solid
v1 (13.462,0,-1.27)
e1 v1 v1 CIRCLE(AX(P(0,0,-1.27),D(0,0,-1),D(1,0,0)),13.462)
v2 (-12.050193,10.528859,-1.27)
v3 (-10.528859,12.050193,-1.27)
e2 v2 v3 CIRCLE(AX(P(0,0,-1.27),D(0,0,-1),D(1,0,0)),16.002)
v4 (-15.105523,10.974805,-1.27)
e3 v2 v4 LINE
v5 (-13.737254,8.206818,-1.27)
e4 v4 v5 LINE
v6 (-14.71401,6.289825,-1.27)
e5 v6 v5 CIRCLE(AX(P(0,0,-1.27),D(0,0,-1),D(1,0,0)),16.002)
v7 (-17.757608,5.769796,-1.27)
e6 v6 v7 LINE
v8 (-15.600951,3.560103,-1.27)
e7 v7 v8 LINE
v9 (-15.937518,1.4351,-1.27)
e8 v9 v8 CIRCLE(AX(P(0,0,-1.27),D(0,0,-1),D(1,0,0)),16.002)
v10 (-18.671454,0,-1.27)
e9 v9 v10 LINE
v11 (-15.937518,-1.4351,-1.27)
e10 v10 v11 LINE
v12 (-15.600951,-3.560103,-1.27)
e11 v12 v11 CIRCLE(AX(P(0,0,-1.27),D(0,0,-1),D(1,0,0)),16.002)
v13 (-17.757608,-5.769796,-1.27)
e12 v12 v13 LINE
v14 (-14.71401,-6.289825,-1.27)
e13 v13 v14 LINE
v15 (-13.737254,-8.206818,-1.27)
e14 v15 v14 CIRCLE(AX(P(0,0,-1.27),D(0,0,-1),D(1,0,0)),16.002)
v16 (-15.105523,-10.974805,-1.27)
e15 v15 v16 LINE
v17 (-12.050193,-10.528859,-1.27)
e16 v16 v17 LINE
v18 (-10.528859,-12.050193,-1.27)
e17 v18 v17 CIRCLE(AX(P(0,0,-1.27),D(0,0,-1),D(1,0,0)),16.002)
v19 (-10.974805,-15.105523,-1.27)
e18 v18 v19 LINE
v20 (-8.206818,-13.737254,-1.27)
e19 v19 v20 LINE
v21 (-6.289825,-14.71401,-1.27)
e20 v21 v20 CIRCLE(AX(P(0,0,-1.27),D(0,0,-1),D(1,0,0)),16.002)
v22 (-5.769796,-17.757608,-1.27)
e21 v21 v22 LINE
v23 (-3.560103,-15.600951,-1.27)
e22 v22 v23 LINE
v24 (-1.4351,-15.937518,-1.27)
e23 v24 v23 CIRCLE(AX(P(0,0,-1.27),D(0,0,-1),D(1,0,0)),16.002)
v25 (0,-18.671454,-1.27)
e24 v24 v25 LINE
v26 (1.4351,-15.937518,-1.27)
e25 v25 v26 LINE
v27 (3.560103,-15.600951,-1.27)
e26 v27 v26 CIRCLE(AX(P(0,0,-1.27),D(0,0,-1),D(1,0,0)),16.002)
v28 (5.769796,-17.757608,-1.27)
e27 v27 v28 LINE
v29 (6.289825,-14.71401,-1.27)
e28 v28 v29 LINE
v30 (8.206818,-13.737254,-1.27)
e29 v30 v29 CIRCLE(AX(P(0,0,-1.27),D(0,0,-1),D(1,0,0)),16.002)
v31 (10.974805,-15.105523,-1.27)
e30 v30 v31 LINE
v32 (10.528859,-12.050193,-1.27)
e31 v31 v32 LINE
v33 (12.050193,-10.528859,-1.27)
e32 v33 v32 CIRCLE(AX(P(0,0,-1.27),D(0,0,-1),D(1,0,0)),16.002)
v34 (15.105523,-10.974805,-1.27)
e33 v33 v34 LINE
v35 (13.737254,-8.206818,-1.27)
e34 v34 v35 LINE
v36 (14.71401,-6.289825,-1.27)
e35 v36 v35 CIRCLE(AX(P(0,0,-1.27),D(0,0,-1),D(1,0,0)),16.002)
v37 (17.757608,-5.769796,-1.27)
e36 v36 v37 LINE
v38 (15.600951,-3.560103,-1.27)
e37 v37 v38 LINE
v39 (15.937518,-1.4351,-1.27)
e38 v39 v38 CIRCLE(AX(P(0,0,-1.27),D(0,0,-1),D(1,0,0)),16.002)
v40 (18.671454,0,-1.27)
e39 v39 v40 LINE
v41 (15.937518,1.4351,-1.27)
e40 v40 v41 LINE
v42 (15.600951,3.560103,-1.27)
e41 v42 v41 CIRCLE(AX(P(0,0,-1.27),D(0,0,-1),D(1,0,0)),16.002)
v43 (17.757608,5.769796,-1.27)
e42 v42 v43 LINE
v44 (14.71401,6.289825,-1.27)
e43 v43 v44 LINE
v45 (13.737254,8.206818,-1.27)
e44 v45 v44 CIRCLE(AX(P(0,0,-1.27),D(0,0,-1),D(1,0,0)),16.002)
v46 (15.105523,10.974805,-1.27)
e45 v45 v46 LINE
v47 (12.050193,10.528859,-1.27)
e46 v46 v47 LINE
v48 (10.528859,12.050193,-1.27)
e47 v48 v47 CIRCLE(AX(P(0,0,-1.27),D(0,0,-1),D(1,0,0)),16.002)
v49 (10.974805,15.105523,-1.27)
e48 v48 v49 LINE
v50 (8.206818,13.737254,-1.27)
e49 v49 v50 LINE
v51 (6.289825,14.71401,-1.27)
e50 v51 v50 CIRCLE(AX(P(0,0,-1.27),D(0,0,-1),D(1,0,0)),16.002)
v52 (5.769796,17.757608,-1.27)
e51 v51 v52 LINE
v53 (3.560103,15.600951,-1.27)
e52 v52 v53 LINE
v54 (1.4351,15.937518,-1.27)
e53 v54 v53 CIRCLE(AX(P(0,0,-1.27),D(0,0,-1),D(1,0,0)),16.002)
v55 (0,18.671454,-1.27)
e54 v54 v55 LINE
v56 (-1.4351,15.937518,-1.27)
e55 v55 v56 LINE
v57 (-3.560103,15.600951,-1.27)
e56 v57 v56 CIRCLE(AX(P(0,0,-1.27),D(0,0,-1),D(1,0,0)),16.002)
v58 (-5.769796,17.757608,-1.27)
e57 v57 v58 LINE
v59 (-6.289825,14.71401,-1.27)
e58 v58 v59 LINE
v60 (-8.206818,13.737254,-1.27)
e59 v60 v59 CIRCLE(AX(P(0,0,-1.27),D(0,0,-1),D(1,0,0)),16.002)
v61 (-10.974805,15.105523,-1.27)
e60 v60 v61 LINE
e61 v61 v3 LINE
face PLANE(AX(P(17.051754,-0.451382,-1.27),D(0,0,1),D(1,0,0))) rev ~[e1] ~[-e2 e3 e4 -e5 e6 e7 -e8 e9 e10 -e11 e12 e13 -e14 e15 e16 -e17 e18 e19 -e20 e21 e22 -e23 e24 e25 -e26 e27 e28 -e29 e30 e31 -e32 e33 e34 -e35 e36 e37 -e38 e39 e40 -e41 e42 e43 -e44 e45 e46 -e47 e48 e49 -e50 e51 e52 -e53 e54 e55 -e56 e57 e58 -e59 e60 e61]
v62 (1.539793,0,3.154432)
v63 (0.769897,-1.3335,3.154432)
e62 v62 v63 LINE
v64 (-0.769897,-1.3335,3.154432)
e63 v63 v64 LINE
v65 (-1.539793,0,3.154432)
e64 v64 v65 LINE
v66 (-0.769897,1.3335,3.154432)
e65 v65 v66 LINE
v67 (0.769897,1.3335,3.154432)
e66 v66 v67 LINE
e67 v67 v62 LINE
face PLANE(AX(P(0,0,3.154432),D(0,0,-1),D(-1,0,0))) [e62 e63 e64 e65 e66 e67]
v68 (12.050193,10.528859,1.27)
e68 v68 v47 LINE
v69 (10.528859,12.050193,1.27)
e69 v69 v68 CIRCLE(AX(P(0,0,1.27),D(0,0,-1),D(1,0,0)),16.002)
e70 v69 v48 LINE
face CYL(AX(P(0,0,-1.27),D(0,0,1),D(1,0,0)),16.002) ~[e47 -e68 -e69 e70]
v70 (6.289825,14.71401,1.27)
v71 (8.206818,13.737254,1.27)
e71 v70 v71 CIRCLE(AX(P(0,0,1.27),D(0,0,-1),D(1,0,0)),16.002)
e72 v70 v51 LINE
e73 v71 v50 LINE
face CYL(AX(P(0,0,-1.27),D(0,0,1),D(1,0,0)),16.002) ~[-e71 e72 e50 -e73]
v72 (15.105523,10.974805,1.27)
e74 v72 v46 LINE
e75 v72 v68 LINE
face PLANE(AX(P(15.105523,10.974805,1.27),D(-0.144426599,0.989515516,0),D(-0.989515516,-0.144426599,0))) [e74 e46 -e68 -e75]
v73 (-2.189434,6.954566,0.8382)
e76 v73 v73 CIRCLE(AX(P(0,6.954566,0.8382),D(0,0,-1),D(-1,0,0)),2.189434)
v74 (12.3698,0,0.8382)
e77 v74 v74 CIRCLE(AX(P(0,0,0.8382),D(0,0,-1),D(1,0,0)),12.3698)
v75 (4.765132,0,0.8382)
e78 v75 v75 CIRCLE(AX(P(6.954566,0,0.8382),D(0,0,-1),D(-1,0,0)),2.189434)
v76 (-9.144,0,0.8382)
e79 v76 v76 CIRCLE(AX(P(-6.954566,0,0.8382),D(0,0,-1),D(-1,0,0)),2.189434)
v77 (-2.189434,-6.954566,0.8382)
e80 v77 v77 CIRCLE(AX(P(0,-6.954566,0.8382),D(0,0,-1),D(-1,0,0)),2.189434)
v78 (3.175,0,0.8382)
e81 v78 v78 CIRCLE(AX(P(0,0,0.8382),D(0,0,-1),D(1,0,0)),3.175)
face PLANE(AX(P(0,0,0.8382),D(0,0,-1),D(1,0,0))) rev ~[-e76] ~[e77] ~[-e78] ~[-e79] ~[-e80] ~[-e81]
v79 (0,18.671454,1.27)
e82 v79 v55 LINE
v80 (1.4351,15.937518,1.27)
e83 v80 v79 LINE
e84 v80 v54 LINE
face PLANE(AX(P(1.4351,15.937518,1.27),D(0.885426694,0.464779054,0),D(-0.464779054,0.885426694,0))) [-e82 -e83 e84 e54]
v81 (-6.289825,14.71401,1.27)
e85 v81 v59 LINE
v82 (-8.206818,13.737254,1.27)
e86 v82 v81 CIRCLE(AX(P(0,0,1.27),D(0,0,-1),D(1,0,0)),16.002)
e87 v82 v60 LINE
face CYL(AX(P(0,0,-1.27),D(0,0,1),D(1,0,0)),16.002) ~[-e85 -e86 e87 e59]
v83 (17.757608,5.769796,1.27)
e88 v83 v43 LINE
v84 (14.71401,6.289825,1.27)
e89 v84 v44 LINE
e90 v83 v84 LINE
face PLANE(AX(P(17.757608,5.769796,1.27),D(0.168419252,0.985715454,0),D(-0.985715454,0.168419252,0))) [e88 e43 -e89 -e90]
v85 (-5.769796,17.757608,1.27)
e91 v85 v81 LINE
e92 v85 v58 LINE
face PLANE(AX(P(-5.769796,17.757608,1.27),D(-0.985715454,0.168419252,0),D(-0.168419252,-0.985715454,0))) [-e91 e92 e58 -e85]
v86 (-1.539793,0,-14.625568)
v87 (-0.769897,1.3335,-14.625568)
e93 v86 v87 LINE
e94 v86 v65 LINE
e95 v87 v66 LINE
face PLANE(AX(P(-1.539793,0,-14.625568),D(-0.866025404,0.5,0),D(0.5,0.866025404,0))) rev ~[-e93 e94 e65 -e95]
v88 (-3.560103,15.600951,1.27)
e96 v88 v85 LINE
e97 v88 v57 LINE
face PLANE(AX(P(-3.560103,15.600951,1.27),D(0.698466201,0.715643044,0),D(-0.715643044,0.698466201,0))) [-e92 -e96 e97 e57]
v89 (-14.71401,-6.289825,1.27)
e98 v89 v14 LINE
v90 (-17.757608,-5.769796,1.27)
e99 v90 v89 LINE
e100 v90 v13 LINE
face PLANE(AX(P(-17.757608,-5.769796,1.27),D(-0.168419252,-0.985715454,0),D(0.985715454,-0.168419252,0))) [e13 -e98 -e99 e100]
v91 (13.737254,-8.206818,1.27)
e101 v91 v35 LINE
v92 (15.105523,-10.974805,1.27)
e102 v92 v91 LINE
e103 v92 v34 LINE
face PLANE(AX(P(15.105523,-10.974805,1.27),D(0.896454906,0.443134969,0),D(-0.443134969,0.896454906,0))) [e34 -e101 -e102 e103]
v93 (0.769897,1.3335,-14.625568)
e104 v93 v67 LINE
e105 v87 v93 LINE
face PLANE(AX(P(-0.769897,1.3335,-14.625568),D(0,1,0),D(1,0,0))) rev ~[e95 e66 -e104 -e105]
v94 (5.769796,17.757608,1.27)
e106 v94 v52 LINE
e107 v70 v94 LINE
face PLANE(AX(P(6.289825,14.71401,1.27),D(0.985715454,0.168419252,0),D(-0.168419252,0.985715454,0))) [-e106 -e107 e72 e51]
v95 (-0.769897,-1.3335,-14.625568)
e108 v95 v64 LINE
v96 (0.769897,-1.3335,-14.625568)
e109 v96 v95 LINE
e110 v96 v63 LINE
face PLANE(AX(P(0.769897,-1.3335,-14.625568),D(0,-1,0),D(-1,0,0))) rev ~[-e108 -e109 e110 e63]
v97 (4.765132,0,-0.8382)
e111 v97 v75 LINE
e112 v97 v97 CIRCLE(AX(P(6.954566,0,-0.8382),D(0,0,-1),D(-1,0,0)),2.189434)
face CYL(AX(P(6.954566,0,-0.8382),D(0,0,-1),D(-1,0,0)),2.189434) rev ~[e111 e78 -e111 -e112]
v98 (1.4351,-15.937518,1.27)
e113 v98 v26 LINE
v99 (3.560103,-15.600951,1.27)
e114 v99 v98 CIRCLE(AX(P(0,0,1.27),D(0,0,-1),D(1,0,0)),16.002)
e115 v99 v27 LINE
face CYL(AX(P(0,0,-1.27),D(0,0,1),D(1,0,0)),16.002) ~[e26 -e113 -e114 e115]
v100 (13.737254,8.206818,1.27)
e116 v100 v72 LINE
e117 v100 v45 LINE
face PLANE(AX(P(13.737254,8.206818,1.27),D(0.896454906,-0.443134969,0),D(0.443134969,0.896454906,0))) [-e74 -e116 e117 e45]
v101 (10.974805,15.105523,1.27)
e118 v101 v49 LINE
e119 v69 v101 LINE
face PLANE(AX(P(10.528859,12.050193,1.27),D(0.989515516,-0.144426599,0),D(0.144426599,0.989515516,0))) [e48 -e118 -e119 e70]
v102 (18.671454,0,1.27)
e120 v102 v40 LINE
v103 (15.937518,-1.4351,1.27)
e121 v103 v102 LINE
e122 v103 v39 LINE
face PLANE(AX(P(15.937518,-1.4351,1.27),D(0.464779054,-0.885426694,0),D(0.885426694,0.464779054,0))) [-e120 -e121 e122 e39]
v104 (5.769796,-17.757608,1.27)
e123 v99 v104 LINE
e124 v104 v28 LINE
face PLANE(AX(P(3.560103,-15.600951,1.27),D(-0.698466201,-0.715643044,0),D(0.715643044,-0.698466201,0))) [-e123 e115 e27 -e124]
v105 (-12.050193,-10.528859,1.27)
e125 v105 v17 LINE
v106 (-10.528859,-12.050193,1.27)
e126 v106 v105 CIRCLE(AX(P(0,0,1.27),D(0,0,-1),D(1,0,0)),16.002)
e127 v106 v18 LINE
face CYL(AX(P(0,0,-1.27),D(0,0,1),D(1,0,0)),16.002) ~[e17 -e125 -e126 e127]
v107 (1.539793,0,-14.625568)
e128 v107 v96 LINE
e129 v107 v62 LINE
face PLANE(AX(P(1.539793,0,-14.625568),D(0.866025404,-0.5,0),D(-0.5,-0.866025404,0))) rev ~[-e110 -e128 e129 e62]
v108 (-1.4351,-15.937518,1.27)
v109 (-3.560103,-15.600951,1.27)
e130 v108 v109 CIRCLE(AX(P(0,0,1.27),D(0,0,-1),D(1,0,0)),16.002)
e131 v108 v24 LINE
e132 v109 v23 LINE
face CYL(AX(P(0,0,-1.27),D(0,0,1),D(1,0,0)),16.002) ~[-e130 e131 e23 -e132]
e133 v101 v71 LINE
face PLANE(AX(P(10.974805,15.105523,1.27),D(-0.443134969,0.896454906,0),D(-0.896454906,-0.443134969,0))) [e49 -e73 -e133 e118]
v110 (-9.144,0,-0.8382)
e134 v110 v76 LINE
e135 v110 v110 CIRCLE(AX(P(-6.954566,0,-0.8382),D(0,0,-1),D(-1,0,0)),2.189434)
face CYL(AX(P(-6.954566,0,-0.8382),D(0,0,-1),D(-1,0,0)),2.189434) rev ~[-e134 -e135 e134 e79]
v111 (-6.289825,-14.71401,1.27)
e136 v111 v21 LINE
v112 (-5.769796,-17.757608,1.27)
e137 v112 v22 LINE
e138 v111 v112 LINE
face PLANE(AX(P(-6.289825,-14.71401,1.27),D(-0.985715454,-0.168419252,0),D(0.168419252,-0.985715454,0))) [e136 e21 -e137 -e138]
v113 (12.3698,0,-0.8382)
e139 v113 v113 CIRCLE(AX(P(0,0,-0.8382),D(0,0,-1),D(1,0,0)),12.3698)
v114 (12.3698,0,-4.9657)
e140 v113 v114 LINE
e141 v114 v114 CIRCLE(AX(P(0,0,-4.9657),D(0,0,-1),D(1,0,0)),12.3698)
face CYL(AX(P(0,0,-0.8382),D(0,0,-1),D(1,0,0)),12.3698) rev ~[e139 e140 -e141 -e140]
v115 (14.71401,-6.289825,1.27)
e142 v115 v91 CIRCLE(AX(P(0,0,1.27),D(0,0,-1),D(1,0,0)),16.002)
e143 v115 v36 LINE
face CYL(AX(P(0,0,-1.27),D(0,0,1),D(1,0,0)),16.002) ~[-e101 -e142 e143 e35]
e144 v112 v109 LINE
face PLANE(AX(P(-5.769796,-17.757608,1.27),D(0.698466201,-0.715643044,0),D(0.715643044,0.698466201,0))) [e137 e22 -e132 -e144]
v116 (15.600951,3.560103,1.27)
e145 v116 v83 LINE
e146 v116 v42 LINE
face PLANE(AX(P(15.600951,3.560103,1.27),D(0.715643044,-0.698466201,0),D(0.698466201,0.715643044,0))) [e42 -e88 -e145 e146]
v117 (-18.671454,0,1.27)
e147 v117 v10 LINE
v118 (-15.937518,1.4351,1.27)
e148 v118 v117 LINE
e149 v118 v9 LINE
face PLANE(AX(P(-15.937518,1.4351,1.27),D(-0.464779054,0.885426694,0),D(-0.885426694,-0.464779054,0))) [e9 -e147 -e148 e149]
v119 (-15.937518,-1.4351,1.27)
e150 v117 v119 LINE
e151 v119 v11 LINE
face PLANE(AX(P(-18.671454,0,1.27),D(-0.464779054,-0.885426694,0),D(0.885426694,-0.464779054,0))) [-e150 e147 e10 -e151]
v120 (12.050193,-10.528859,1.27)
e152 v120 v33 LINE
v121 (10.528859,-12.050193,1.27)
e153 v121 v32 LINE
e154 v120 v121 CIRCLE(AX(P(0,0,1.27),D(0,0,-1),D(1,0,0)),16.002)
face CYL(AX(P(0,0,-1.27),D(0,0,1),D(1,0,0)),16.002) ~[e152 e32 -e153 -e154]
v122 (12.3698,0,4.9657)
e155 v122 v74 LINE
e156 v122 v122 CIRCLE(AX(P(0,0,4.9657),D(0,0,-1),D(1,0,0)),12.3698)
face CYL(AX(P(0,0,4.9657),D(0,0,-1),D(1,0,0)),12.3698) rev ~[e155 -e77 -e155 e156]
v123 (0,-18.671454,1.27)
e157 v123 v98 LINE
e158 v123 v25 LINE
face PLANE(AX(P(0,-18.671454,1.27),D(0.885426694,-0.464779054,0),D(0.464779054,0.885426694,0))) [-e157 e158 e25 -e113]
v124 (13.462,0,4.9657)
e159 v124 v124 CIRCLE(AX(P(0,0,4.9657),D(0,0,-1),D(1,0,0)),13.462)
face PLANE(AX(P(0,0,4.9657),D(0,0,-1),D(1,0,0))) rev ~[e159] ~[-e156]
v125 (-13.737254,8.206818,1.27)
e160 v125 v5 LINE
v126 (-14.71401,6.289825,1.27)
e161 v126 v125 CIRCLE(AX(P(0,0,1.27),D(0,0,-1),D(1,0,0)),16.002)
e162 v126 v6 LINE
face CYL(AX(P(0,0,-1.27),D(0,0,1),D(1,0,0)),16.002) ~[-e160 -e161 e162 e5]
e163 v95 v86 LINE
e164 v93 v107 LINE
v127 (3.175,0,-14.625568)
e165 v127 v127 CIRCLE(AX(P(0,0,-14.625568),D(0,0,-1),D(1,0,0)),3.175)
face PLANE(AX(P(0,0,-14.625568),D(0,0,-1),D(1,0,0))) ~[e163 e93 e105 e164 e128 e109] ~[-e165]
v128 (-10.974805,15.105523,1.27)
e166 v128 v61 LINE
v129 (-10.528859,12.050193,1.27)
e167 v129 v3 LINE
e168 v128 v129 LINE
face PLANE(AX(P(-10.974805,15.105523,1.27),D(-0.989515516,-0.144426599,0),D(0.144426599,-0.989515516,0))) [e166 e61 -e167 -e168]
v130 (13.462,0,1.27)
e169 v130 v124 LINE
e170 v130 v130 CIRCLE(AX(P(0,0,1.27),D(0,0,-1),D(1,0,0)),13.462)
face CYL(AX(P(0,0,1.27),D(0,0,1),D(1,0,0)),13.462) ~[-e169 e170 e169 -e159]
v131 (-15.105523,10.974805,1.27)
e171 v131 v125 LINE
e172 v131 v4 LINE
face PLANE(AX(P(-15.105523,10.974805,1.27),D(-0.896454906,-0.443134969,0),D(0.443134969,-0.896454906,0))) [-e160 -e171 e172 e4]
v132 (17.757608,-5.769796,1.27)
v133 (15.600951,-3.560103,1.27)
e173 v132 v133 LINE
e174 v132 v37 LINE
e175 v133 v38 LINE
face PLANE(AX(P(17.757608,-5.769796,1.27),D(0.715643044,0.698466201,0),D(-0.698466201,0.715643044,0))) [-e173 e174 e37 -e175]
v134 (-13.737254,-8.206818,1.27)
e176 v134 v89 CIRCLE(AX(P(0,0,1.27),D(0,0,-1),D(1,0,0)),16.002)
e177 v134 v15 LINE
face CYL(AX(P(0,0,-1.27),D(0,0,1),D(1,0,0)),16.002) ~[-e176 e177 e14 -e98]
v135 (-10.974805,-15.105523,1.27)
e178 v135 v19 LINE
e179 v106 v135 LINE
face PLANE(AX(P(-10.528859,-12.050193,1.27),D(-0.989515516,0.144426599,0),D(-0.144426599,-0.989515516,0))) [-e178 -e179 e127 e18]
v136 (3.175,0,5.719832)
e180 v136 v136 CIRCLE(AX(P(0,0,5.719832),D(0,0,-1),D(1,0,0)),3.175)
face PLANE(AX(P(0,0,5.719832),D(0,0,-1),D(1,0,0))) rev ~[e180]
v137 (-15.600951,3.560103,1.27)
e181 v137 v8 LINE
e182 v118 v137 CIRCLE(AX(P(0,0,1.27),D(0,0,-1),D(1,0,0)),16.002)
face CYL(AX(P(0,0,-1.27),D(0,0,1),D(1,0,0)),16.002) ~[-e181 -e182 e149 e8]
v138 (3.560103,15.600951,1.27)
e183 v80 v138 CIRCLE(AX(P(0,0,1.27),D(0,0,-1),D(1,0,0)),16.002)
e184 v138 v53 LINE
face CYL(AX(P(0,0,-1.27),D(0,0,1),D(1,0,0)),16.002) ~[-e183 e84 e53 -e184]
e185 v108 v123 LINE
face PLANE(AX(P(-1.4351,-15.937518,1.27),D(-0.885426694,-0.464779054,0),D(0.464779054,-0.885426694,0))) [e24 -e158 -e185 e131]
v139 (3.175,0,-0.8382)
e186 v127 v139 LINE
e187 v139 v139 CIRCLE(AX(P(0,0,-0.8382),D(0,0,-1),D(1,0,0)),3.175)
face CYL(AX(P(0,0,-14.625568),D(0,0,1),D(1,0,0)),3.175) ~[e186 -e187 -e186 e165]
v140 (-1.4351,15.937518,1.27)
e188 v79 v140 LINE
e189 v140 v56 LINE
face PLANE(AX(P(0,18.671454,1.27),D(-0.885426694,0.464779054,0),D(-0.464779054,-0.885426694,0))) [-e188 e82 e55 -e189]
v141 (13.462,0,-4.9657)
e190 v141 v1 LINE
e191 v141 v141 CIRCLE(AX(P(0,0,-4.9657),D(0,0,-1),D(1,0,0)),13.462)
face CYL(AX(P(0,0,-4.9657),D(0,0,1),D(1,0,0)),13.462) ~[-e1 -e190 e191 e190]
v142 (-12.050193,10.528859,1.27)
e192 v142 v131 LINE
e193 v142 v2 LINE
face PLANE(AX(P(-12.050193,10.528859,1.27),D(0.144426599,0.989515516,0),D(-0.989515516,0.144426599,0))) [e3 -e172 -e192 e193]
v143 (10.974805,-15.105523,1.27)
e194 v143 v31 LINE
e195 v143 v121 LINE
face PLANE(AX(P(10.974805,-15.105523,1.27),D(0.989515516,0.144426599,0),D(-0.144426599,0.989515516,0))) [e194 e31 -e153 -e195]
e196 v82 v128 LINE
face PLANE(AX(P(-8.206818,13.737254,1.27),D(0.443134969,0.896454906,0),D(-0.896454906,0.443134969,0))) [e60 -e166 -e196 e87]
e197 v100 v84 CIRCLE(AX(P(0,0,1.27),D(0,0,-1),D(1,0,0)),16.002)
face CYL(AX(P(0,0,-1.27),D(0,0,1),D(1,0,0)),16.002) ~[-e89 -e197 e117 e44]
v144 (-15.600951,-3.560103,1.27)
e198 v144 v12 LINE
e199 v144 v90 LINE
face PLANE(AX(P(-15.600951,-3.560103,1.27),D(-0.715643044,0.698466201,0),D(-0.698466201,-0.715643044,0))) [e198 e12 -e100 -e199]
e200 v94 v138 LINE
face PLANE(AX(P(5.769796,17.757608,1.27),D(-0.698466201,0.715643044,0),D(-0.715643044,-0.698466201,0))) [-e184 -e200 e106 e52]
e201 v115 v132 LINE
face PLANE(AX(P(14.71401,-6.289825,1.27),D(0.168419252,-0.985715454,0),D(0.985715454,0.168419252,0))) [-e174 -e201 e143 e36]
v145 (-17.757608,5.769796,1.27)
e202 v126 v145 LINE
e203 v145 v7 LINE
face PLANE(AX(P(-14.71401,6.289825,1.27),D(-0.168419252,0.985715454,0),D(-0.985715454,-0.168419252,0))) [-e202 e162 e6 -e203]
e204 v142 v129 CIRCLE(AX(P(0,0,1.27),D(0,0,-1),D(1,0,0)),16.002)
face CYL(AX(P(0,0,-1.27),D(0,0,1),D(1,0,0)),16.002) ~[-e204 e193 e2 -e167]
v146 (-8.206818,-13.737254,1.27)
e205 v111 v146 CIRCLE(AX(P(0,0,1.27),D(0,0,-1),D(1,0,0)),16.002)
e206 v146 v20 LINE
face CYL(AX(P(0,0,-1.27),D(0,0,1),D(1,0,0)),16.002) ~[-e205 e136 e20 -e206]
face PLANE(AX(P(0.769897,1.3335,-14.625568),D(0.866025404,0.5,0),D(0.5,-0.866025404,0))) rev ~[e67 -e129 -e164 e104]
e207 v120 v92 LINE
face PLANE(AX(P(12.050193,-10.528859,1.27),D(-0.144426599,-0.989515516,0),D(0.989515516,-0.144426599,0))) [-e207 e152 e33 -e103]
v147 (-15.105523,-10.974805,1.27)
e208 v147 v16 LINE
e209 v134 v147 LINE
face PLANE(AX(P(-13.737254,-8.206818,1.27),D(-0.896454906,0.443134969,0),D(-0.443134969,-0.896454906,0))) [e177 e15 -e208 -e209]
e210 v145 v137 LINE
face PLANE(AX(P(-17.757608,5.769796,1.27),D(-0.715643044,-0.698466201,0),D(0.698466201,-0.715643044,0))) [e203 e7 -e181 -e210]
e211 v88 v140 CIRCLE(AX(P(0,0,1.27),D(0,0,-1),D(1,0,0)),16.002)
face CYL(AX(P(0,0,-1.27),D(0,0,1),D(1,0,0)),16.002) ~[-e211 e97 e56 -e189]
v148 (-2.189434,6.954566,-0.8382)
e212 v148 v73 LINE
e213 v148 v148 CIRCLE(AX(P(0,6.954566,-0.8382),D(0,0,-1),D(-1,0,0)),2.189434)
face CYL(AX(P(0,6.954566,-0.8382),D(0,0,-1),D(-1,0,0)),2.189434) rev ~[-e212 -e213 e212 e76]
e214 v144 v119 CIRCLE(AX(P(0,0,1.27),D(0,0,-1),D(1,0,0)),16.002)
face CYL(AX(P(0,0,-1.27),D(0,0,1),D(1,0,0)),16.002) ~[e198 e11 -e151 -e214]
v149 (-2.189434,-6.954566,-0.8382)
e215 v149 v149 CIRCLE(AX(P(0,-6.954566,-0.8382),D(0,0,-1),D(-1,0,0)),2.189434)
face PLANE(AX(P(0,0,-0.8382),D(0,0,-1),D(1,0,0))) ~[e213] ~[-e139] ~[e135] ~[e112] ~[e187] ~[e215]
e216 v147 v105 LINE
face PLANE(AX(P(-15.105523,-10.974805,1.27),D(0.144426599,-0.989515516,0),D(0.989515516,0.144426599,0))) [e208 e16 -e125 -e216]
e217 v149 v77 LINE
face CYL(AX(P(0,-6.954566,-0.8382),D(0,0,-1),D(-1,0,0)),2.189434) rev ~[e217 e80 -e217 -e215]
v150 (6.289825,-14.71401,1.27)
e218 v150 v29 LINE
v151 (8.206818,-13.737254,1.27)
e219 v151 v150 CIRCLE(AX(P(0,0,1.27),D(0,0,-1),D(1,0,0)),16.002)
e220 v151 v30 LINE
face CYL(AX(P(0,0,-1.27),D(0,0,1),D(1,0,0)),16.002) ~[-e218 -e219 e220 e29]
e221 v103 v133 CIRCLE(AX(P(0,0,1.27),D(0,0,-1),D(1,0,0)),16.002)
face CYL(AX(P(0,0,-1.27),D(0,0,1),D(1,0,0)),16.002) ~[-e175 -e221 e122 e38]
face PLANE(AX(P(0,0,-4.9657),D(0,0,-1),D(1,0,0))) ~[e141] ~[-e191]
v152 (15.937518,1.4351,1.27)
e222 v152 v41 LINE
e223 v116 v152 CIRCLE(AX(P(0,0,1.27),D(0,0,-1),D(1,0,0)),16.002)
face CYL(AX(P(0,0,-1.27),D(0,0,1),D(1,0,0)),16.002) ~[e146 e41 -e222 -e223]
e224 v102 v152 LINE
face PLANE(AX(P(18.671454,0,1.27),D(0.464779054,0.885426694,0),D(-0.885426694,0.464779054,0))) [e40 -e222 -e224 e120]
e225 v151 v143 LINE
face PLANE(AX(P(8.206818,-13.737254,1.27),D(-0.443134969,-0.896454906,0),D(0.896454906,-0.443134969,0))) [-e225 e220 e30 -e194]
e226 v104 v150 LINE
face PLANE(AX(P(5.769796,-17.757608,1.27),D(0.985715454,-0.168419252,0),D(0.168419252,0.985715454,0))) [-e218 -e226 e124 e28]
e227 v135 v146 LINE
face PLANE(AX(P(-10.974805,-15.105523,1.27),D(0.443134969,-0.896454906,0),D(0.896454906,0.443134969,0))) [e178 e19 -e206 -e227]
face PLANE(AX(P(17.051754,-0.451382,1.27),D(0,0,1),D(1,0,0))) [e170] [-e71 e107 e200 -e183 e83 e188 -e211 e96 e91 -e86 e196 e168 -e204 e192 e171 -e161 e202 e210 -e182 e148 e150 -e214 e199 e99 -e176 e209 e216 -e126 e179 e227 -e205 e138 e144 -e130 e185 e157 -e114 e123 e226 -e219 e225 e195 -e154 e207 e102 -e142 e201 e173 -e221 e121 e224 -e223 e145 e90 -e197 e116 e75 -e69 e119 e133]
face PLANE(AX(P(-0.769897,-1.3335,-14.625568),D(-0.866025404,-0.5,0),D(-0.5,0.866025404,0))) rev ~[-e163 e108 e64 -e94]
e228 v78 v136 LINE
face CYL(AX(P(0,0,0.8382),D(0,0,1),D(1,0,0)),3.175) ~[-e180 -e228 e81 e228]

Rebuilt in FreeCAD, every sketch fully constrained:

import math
import FreeCAD as App
import Part
import Sketcher
Q = App.Units.Quantity


def add_polygon(sketch, points):
    """Adds a closed chain of lines whose ends are joined by coincident constraints."""
    first, n = sketch.GeometryCount, len(points)
    for a, b in zip(points, points[1:] + points[:1]):
        sketch.addGeometry(Part.LineSegment(App.Vector(*a, 0), App.Vector(*b, 0)), False)
    for i in range(n):
        sketch.addConstraint(Sketcher.Constraint("Coincident", first + i, 2, first + (i + 1) % n, 1))

doc = App.newDocument("Part")
body = doc.addObject("PartDesign::Body", "Body")

# Sketch on YZ plane
sketch1 = body.newObject("Sketcher::SketchObject", "Sketch")
sketch1.AttachmentSupport = (doc.getObject("YZ_Plane"), [""])
sketch1.MapMode = "FlatFace"
add_polygon(sketch1, [(13.5, -5), (13.5, -1.3), (16, -1.3), (16, 1.3), (13.5, 1.3), (13.5, 5), (12.4, 5), (12.4, 0.8), (3.2, 0.8), (3.2, 5.7), (0, 5.7), (0, -14.6), (3.2, -14.6), (3.2, -0.8), (12.4, -0.8), (12.4, -5)])  # lines 0-15
sketch1.addConstraint(Sketcher.Constraint("Vertical", 0))
sketch1.addConstraint(Sketcher.Constraint("Horizontal", 1))
sketch1.addConstraint(Sketcher.Constraint("Vertical", 2))
sketch1.addConstraint(Sketcher.Constraint("Horizontal", 3))
sketch1.addConstraint(Sketcher.Constraint("Vertical", 4))
sketch1.addConstraint(Sketcher.Constraint("Horizontal", 5))
sketch1.addConstraint(Sketcher.Constraint("Vertical", 6))
sketch1.addConstraint(Sketcher.Constraint("Horizontal", 7))
sketch1.addConstraint(Sketcher.Constraint("Vertical", 8))
sketch1.addConstraint(Sketcher.Constraint("Horizontal", 9))
sketch1.addConstraint(Sketcher.Constraint("Vertical", 10))
sketch1.addConstraint(Sketcher.Constraint("Horizontal", 11))
sketch1.addConstraint(Sketcher.Constraint("Vertical", 12))
sketch1.addConstraint(Sketcher.Constraint("Horizontal", 13))
sketch1.addConstraint(Sketcher.Constraint("Vertical", 14))
sketch1.addConstraint(Sketcher.Constraint("Horizontal", 15))
sketch1.addConstraint(Sketcher.Constraint("Symmetric", 0, 2, 3, 2, -1))
sketch1.addConstraint(Sketcher.Constraint("Symmetric", 7, 2, 12, 2, -1))
sketch1.addConstraint(Sketcher.Constraint("Symmetric", 5, 2, 14, 2, -1))
sketch1.addConstraint(Sketcher.Constraint("PointOnObject", 9, 2, -2))
sketch1.addConstraint(Sketcher.Constraint("Equal", 3, 2))
sketch1.addConstraint(Sketcher.Constraint("DistanceX", 1, 1, 1, 2, Q("0.1 in")))
sketch1.addConstraint(Sketcher.Constraint("DistanceX", 5, 2, 5, 1, Q("0.043 in")))
sketch1.addConstraint(Sketcher.Constraint("DistanceX", 7, 2, 7, 1, Q("0.362 in")))
sketch1.addConstraint(Sketcher.Constraint("DistanceX", 9, 2, 9, 1, Q("0.125 in")))
sketch1.addConstraint(Sketcher.Constraint("DistanceY", 10, 2, 10, 1, Q("0.801 in")))
sketch1.addConstraint(Sketcher.Constraint("DistanceY", 0, 1, 0, 2, Q("0.1455 in")))
sketch1.addConstraint(Sketcher.Constraint("DistanceY", 6, 2, 6, 1, Q("0.1625 in")))
sketch1.addConstraint(Sketcher.Constraint("DistanceY", 8, 1, 8, 2, 4.881632))
revolution = body.newObject("PartDesign::Revolution", "Revolution")
revolution.Profile = sketch1
revolution.ReferenceAxis = (sketch1, ["V_Axis"])
revolution.Angle = 360

# Sketch on XY plane
sketch2 = body.newObject("Sketcher::SketchObject", "Sketch001")
sketch2.AttachmentSupport = (doc.getObject("XY_Plane"), [""])
sketch2.MapMode = "FlatFace"
sketch2.AttachmentOffset = App.Placement(App.Vector(0, 0, -14.625568), App.Rotation())
add_polygon(sketch2, [(-1.5, 0), (-0.8, 1.3), (0.8, 1.3), (1.5, 0), (0.8, -1.3), (-0.8, -1.3)])  # lines 0-5
sketch2.addConstraint(Sketcher.Constraint("Horizontal", 1))
sketch2.addConstraint(Sketcher.Constraint("Horizontal", 4))
sketch2.addConstraint(Sketcher.Constraint("Symmetric", 0, 2, 3, 2, -1, 1))
sketch2.addConstraint(Sketcher.Constraint("Symmetric", 2, 2, 5, 2, -1, 1))
sketch2.addConstraint(Sketcher.Constraint("PointOnObject", 2, 2, -1))
sketch2.addConstraint(Sketcher.Constraint("Parallel", 2, 5))
sketch2.addConstraint(Sketcher.Constraint("Vertical", 1, 2, 3, 2))
sketch2.addConstraint(Sketcher.Constraint("Angle", 0, Q("60 deg")))
sketch2.addConstraint(Sketcher.Constraint("DistanceY", 3, 2, 1, 2, Q("0.105 in")))
sketch2.addConstraint(Sketcher.Constraint("DistanceX", 1, 1, 1, 2, 1.539793))
pocket1 = body.newObject("PartDesign::Pocket", "Pocket")
pocket1.Profile = sketch2
pocket1.Length = Q("0.7 in")
pocket1.Reversed = True

# Sketch on XY plane
sketch3 = body.newObject("Sketcher::SketchObject", "Sketch002")
sketch3.AttachmentSupport = (doc.getObject("XY_Plane"), [""])
sketch3.MapMode = "FlatFace"
sketch3.AttachmentOffset = App.Placement(App.Vector(0, 0, -0.033 * 25.4), App.Rotation())
sketch3.addGeometry(Part.Circle(App.Vector(0, 7, 0), App.Vector(0, 0, 1), 2.2), False)
sketch3.addGeometry(Part.Circle(App.Vector(-7, 0, 0), App.Vector(0, 0, 1), 2.2), False)
sketch3.addGeometry(Part.Circle(App.Vector(0, -7, 0), App.Vector(0, 0, 1), 2.2), False)
sketch3.addGeometry(Part.Circle(App.Vector(7, 0, 0), App.Vector(0, 0, 1), 2.2), False)
sketch3.addConstraint(Sketcher.Constraint("Equal", 0, 1))
sketch3.addConstraint(Sketcher.Constraint("Equal", 1, 2))
sketch3.addConstraint(Sketcher.Constraint("Equal", 2, 3))
sketch3.addConstraint(Sketcher.Constraint("Symmetric", 0, 3, 2, 3, -1, 1))
sketch3.addConstraint(Sketcher.Constraint("Symmetric", 1, 3, 3, 3, -1, 1))
sketch3.addConstraint(Sketcher.Constraint("PointOnObject", 0, 3, -2))
sketch3.addConstraint(Sketcher.Constraint("PointOnObject", 1, 3, -1))
sketch3.addConstraint(Sketcher.Constraint("Diameter", 0, 4.378868))
sketch3.addConstraint(Sketcher.Constraint("DistanceY", 2, 3, 0, 3, 13.909132))
sketch3.addConstraint(Sketcher.Constraint("DistanceX", 1, 3, 3, 3, 13.909132))
pocket2 = body.newObject("PartDesign::Pocket", "Pocket001")
pocket2.Profile = sketch3
pocket2.Length = Q("0.066 in")
pocket2.Reversed = True

# Sketch on XY plane
sketch4 = body.newObject("Sketcher::SketchObject", "Sketch003")
sketch4.AttachmentSupport = (doc.getObject("XY_Plane"), [""])
sketch4.MapMode = "FlatFace"
sketch4.AttachmentOffset = App.Placement(App.Vector(0, 0, 0.05 * 25.4), App.Rotation())
sketch4.addGeometry(Part.ArcOfCircle(Part.Circle(App.Vector(0, 0, 0), App.Vector(0, 0, 1), 16), math.radians(138.85), math.radians(149.15)), False)
sketch4.addGeometry(Part.LineSegment(App.Vector(-12.1, 10.5, 0), App.Vector(-15.1, 11, 0)), False)
sketch4.addGeometry(Part.LineSegment(App.Vector(-15.1, 11, 0), App.Vector(-13.7, 8.2, 0)), False)
sketch4.addGeometry(Part.ArcOfCircle(Part.Circle(App.Vector(0, 0, 0), App.Vector(0, 0, 1), 16), math.radians(120.85), math.radians(131.15)), False)
sketch4.addGeometry(Part.LineSegment(App.Vector(-8.2, 13.7, 0), App.Vector(-11, 15.1, 0)), False)
sketch4.addGeometry(Part.LineSegment(App.Vector(-11, 15.1, 0), App.Vector(-10.5, 12.1, 0)), False)
sketch4.addGeometry(Part.ArcOfCircle(Part.Circle(App.Vector(0, 0, 0), App.Vector(0, 0, 1), 16), math.radians(102.85), math.radians(113.15)), False)
sketch4.addGeometry(Part.LineSegment(App.Vector(-3.6, 15.6, 0), App.Vector(-5.8, 17.8, 0)), False)
sketch4.addGeometry(Part.LineSegment(App.Vector(-5.8, 17.8, 0), App.Vector(-6.3, 14.7, 0)), False)
sketch4.addGeometry(Part.ArcOfCircle(Part.Circle(App.Vector(0, 0, 0), App.Vector(0, 0, 1), 16), math.radians(84.85), math.radians(95.15)), False)
sketch4.addGeometry(Part.LineSegment(App.Vector(1.4, 15.9, 0), App.Vector(0, 18.7, 0)), False)
sketch4.addGeometry(Part.LineSegment(App.Vector(0, 18.7, 0), App.Vector(-1.4, 15.9, 0)), False)
sketch4.addGeometry(Part.ArcOfCircle(Part.Circle(App.Vector(0, 0, 0), App.Vector(0, 0, 1), 16), math.radians(66.85), math.radians(77.15)), False)
sketch4.addGeometry(Part.LineSegment(App.Vector(6.3, 14.7, 0), App.Vector(5.8, 17.8, 0)), False)
sketch4.addGeometry(Part.LineSegment(App.Vector(5.8, 17.8, 0), App.Vector(3.6, 15.6, 0)), False)
sketch4.addGeometry(Part.ArcOfCircle(Part.Circle(App.Vector(0, 0, 0), App.Vector(0, 0, 1), 16), math.radians(48.85), math.radians(59.15)), False)
sketch4.addGeometry(Part.LineSegment(App.Vector(10.5, 12.1, 0), App.Vector(11, 15.1, 0)), False)
sketch4.addGeometry(Part.LineSegment(App.Vector(11, 15.1, 0), App.Vector(8.2, 13.7, 0)), False)
sketch4.addGeometry(Part.ArcOfCircle(Part.Circle(App.Vector(0, 0, 0), App.Vector(0, 0, 1), 16), math.radians(30.85), math.radians(41.15)), False)
sketch4.addGeometry(Part.LineSegment(App.Vector(13.7, 8.2, 0), App.Vector(15.1, 11, 0)), False)
sketch4.addGeometry(Part.LineSegment(App.Vector(15.1, 11, 0), App.Vector(12.1, 10.5, 0)), False)
sketch4.addGeometry(Part.ArcOfCircle(Part.Circle(App.Vector(0, 0, 0), App.Vector(0, 0, 1), 16), math.radians(12.85), math.radians(23.15)), False)
sketch4.addGeometry(Part.LineSegment(App.Vector(15.6, 3.6, 0), App.Vector(17.8, 5.8, 0)), False)
sketch4.addGeometry(Part.LineSegment(App.Vector(17.8, 5.8, 0), App.Vector(14.7, 6.3, 0)), False)
sketch4.addGeometry(Part.ArcOfCircle(Part.Circle(App.Vector(0, 0, 0), App.Vector(0, 0, 1), 16), math.radians(-5.15), math.radians(0)), False)
sketch4.addGeometry(Part.LineSegment(App.Vector(15.9, -1.4, 0), App.Vector(18.7, 0, 0)), False)
sketch4.addGeometry(Part.LineSegment(App.Vector(18.7, 0, 0), App.Vector(15.9, 1.4, 0)), False)
sketch4.addGeometry(Part.ArcOfCircle(Part.Circle(App.Vector(0, 0, 0), App.Vector(0, 0, 1), 16), math.radians(0), math.radians(5.15)), False)
sketch4.addGeometry(Part.LineSegment(App.Vector(17.8, -5.8, 0), App.Vector(15.6, -3.6, 0)), False)
sketch4.addGeometry(Part.ArcOfCircle(Part.Circle(App.Vector(0, 0, 0), App.Vector(0, 0, 1), 16), math.radians(-23.15), math.radians(-12.85)), False)
sketch4.addGeometry(Part.LineSegment(App.Vector(14.7, -6.3, 0), App.Vector(17.8, -5.8, 0)), False)
sketch4.addGeometry(Part.LineSegment(App.Vector(15.1, -11, 0), App.Vector(13.7, -8.2, 0)), False)
sketch4.addGeometry(Part.ArcOfCircle(Part.Circle(App.Vector(0, 0, 0), App.Vector(0, 0, 1), 16), math.radians(-41.15), math.radians(-30.85)), False)
sketch4.addGeometry(Part.LineSegment(App.Vector(12.1, -10.5, 0), App.Vector(15.1, -11, 0)), False)
sketch4.addGeometry(Part.LineSegment(App.Vector(11, -15.1, 0), App.Vector(10.5, -12.1, 0)), False)
sketch4.addGeometry(Part.ArcOfCircle(Part.Circle(App.Vector(0, 0, 0), App.Vector(0, 0, 1), 16), math.radians(-59.15), math.radians(-48.85)), False)
sketch4.addGeometry(Part.LineSegment(App.Vector(8.2, -13.7, 0), App.Vector(11, -15.1, 0)), False)
sketch4.addGeometry(Part.LineSegment(App.Vector(5.8, -17.8, 0), App.Vector(6.3, -14.7, 0)), False)
sketch4.addGeometry(Part.ArcOfCircle(Part.Circle(App.Vector(0, 0, 0), App.Vector(0, 0, 1), 16), math.radians(-77.15), math.radians(-66.85)), False)
sketch4.addGeometry(Part.LineSegment(App.Vector(3.6, -15.6, 0), App.Vector(5.8, -17.8, 0)), False)
sketch4.addGeometry(Part.LineSegment(App.Vector(0, -18.7, 0), App.Vector(1.4, -15.9, 0)), False)
sketch4.addGeometry(Part.ArcOfCircle(Part.Circle(App.Vector(0, 0, 0), App.Vector(0, 0, 1), 16), math.radians(-95.15), math.radians(-84.85)), False)
sketch4.addGeometry(Part.LineSegment(App.Vector(-1.4, -15.9, 0), App.Vector(0, -18.7, 0)), False)
sketch4.addGeometry(Part.LineSegment(App.Vector(-5.8, -17.8, 0), App.Vector(-3.6, -15.6, 0)), False)
sketch4.addGeometry(Part.ArcOfCircle(Part.Circle(App.Vector(0, 0, 0), App.Vector(0, 0, 1), 16), math.radians(-113.15), math.radians(-102.85)), False)
sketch4.addGeometry(Part.LineSegment(App.Vector(-6.3, -14.7, 0), App.Vector(-5.8, -17.8, 0)), False)
sketch4.addGeometry(Part.LineSegment(App.Vector(-11, -15.1, 0), App.Vector(-8.2, -13.7, 0)), False)
sketch4.addGeometry(Part.ArcOfCircle(Part.Circle(App.Vector(0, 0, 0), App.Vector(0, 0, 1), 16), math.radians(-131.15), math.radians(-120.85)), False)
sketch4.addGeometry(Part.LineSegment(App.Vector(-10.5, -12.1, 0), App.Vector(-11, -15.1, 0)), False)
sketch4.addGeometry(Part.LineSegment(App.Vector(-15.1, -11, 0), App.Vector(-12.1, -10.5, 0)), False)
sketch4.addGeometry(Part.ArcOfCircle(Part.Circle(App.Vector(0, 0, 0), App.Vector(0, 0, 1), 16), math.radians(-149.15), math.radians(-138.85)), False)
sketch4.addGeometry(Part.LineSegment(App.Vector(-13.7, -8.2, 0), App.Vector(-15.1, -11, 0)), False)
sketch4.addGeometry(Part.LineSegment(App.Vector(-17.8, -5.8, 0), App.Vector(-14.7, -6.3, 0)), False)
sketch4.addGeometry(Part.ArcOfCircle(Part.Circle(App.Vector(0, 0, 0), App.Vector(0, 0, 1), 16), math.radians(-167.15), math.radians(-156.85)), False)
sketch4.addGeometry(Part.LineSegment(App.Vector(-15.6, -3.6, 0), App.Vector(-17.8, -5.8, 0)), False)
sketch4.addGeometry(Part.ArcOfCircle(Part.Circle(App.Vector(0, 0, 0), App.Vector(0, 0, 1), 16), math.radians(174.85), math.radians(185.15)), False)
sketch4.addGeometry(Part.LineSegment(App.Vector(-15.9, 1.4, 0), App.Vector(-18.7, 0, 0)), False)
sketch4.addGeometry(Part.LineSegment(App.Vector(-18.7, 0, 0), App.Vector(-15.9, -1.4, 0)), False)
sketch4.addGeometry(Part.ArcOfCircle(Part.Circle(App.Vector(0, 0, 0), App.Vector(0, 0, 1), 16), math.radians(156.85), math.radians(167.15)), False)
sketch4.addGeometry(Part.LineSegment(App.Vector(-14.7, 6.3, 0), App.Vector(-17.8, 5.8, 0)), False)
sketch4.addGeometry(Part.LineSegment(App.Vector(-17.8, 5.8, 0), App.Vector(-15.6, 3.6, 0)), False)
sketch4.addConstraint(Sketcher.Constraint("Coincident", 0, 1, 1, 1))
sketch4.addConstraint(Sketcher.Constraint("Coincident", 1, 2, 2, 1))
sketch4.addConstraint(Sketcher.Constraint("Coincident", 2, 2, 0, 2))
sketch4.addConstraint(Sketcher.Constraint("Coincident", 3, 1, 4, 1))
sketch4.addConstraint(Sketcher.Constraint("Coincident", 4, 2, 5, 1))
sketch4.addConstraint(Sketcher.Constraint("Coincident", 5, 2, 3, 2))
sketch4.addConstraint(Sketcher.Constraint("Coincident", 6, 1, 7, 1))
sketch4.addConstraint(Sketcher.Constraint("Coincident", 7, 2, 8, 1))
sketch4.addConstraint(Sketcher.Constraint("Coincident", 8, 2, 6, 2))
sketch4.addConstraint(Sketcher.Constraint("Coincident", 9, 1, 10, 1))
sketch4.addConstraint(Sketcher.Constraint("Coincident", 10, 2, 11, 1))
sketch4.addConstraint(Sketcher.Constraint("Coincident", 11, 2, 9, 2))
sketch4.addConstraint(Sketcher.Constraint("Coincident", 12, 1, 13, 1))
sketch4.addConstraint(Sketcher.Constraint("Coincident", 13, 2, 14, 1))
sketch4.addConstraint(Sketcher.Constraint("Coincident", 14, 2, 12, 2))
sketch4.addConstraint(Sketcher.Constraint("Coincident", 15, 1, 16, 1))
sketch4.addConstraint(Sketcher.Constraint("Coincident", 16, 2, 17, 1))
sketch4.addConstraint(Sketcher.Constraint("Coincident", 17, 2, 15, 2))
sketch4.addConstraint(Sketcher.Constraint("Coincident", 18, 1, 19, 1))
sketch4.addConstraint(Sketcher.Constraint("Coincident", 19, 2, 20, 1))
sketch4.addConstraint(Sketcher.Constraint("Coincident", 20, 2, 18, 2))
sketch4.addConstraint(Sketcher.Constraint("Coincident", 21, 1, 22, 1))
sketch4.addConstraint(Sketcher.Constraint("Coincident", 22, 2, 23, 1))
sketch4.addConstraint(Sketcher.Constraint("Coincident", 23, 2, 21, 2))
sketch4.addConstraint(Sketcher.Constraint("Coincident", 24, 1, 25, 1))
sketch4.addConstraint(Sketcher.Constraint("Coincident", 25, 2, 26, 1))
sketch4.addConstraint(Sketcher.Constraint("Coincident", 26, 2, 27, 2))
sketch4.addConstraint(Sketcher.Constraint("Tangent", 27, 1, 24, 2))
sketch4.addConstraint(Sketcher.Constraint("Coincident", 28, 2, 29, 2))
sketch4.addConstraint(Sketcher.Constraint("Coincident", 29, 1, 30, 1))
sketch4.addConstraint(Sketcher.Constraint("Coincident", 30, 2, 28, 1))
sketch4.addConstraint(Sketcher.Constraint("Coincident", 31, 2, 32, 2))
sketch4.addConstraint(Sketcher.Constraint("Coincident", 32, 1, 33, 1))
sketch4.addConstraint(Sketcher.Constraint("Coincident", 33, 2, 31, 1))
sketch4.addConstraint(Sketcher.Constraint("Coincident", 34, 2, 35, 2))
sketch4.addConstraint(Sketcher.Constraint("Coincident", 35, 1, 36, 1))
sketch4.addConstraint(Sketcher.Constraint("Coincident", 36, 2, 34, 1))
sketch4.addConstraint(Sketcher.Constraint("Coincident", 37, 2, 38, 2))
sketch4.addConstraint(Sketcher.Constraint("Coincident", 38, 1, 39, 1))
sketch4.addConstraint(Sketcher.Constraint("Coincident", 39, 2, 37, 1))
sketch4.addConstraint(Sketcher.Constraint("Coincident", 40, 2, 41, 2))
sketch4.addConstraint(Sketcher.Constraint("Coincident", 41, 1, 42, 1))
sketch4.addConstraint(Sketcher.Constraint("Coincident", 42, 2, 40, 1))
sketch4.addConstraint(Sketcher.Constraint("Coincident", 43, 2, 44, 2))
sketch4.addConstraint(Sketcher.Constraint("Coincident", 44, 1, 45, 1))
sketch4.addConstraint(Sketcher.Constraint("Coincident", 45, 2, 43, 1))
sketch4.addConstraint(Sketcher.Constraint("Coincident", 46, 2, 47, 2))
sketch4.addConstraint(Sketcher.Constraint("Coincident", 47, 1, 48, 1))
sketch4.addConstraint(Sketcher.Constraint("Coincident", 48, 2, 46, 1))
sketch4.addConstraint(Sketcher.Constraint("Coincident", 49, 2, 50, 2))
sketch4.addConstraint(Sketcher.Constraint("Coincident", 50, 1, 51, 1))
sketch4.addConstraint(Sketcher.Constraint("Coincident", 51, 2, 49, 1))
sketch4.addConstraint(Sketcher.Constraint("Coincident", 52, 2, 53, 2))
sketch4.addConstraint(Sketcher.Constraint("Coincident", 53, 1, 54, 1))
sketch4.addConstraint(Sketcher.Constraint("Coincident", 54, 2, 52, 1))
sketch4.addConstraint(Sketcher.Constraint("Coincident", 55, 1, 56, 1))
sketch4.addConstraint(Sketcher.Constraint("Coincident", 56, 2, 57, 1))
sketch4.addConstraint(Sketcher.Constraint("Coincident", 57, 2, 55, 2))
sketch4.addConstraint(Sketcher.Constraint("Coincident", 58, 1, 59, 1))
sketch4.addConstraint(Sketcher.Constraint("Coincident", 59, 2, 60, 1))
sketch4.addConstraint(Sketcher.Constraint("Coincident", 60, 2, 58, 2))
sketch4.addConstraint(Sketcher.Constraint("Coincident", 0, 3, -1, 1))
sketch4.addConstraint(Sketcher.Constraint("Coincident", 3, 3, -1, 1))
sketch4.addConstraint(Sketcher.Constraint("Coincident", 6, 3, -1, 1))
sketch4.addConstraint(Sketcher.Constraint("Coincident", 9, 3, -1, 1))
sketch4.addConstraint(Sketcher.Constraint("Coincident", 12, 3, -1, 1))
sketch4.addConstraint(Sketcher.Constraint("Coincident", 15, 3, -1, 1))
sketch4.addConstraint(Sketcher.Constraint("Coincident", 18, 3, -1, 1))
sketch4.addConstraint(Sketcher.Constraint("Coincident", 21, 3, -1, 1))
sketch4.addConstraint(Sketcher.Constraint("Coincident", 24, 3, -1, 1))
sketch4.addConstraint(Sketcher.Constraint("Coincident", 29, 3, -1, 1))
sketch4.addConstraint(Sketcher.Constraint("Coincident", 32, 3, -1, 1))
sketch4.addConstraint(Sketcher.Constraint("Coincident", 35, 3, -1, 1))
sketch4.addConstraint(Sketcher.Constraint("Coincident", 38, 3, -1, 1))
sketch4.addConstraint(Sketcher.Constraint("Coincident", 41, 3, -1, 1))
sketch4.addConstraint(Sketcher.Constraint("Coincident", 44, 3, -1, 1))
sketch4.addConstraint(Sketcher.Constraint("Coincident", 47, 3, -1, 1))
sketch4.addConstraint(Sketcher.Constraint("Coincident", 50, 3, -1, 1))
sketch4.addConstraint(Sketcher.Constraint("Coincident", 53, 3, -1, 1))
sketch4.addConstraint(Sketcher.Constraint("Coincident", 55, 3, -1, 1))
sketch4.addConstraint(Sketcher.Constraint("Coincident", 58, 3, -1, 1))
sketch4.addConstraint(Sketcher.Constraint("Equal", 0, 3))
sketch4.addConstraint(Sketcher.Constraint("Equal", 3, 6))
sketch4.addConstraint(Sketcher.Constraint("Equal", 6, 9))
sketch4.addConstraint(Sketcher.Constraint("Equal", 9, 12))
sketch4.addConstraint(Sketcher.Constraint("Equal", 12, 15))
sketch4.addConstraint(Sketcher.Constraint("Equal", 15, 18))
sketch4.addConstraint(Sketcher.Constraint("Equal", 18, 21))
sketch4.addConstraint(Sketcher.Constraint("Equal", 21, 24))
sketch4.addConstraint(Sketcher.Constraint("Equal", 24, 27))
sketch4.addConstraint(Sketcher.Constraint("Equal", 27, 29))
sketch4.addConstraint(Sketcher.Constraint("Equal", 29, 32))
sketch4.addConstraint(Sketcher.Constraint("Equal", 32, 35))
sketch4.addConstraint(Sketcher.Constraint("Equal", 35, 38))
sketch4.addConstraint(Sketcher.Constraint("Equal", 38, 41))
sketch4.addConstraint(Sketcher.Constraint("Equal", 41, 44))
sketch4.addConstraint(Sketcher.Constraint("Equal", 44, 47))
sketch4.addConstraint(Sketcher.Constraint("Equal", 47, 50))
sketch4.addConstraint(Sketcher.Constraint("Equal", 50, 53))
sketch4.addConstraint(Sketcher.Constraint("Equal", 53, 55))
sketch4.addConstraint(Sketcher.Constraint("Equal", 55, 58))
sketch4.addConstraint(Sketcher.Constraint("Symmetric", 1, 2, 33, 2, -1, 1))
sketch4.addConstraint(Sketcher.Constraint("Symmetric", 4, 2, 36, 2, -1, 1))
sketch4.addConstraint(Sketcher.Constraint("Symmetric", 7, 2, 39, 2, -1, 1))
sketch4.addConstraint(Sketcher.Constraint("Symmetric", 10, 2, 42, 2, -1, 1))
sketch4.addConstraint(Sketcher.Constraint("Symmetric", 13, 2, 45, 2, -1, 1))
sketch4.addConstraint(Sketcher.Constraint("Symmetric", 16, 2, 48, 2, -1, 1))
sketch4.addConstraint(Sketcher.Constraint("Symmetric", 19, 2, 51, 2, -1, 1))
sketch4.addConstraint(Sketcher.Constraint("Symmetric", 22, 2, 54, 2, -1, 1))
sketch4.addConstraint(Sketcher.Constraint("Symmetric", 25, 2, 56, 2, -1, 1))
sketch4.addConstraint(Sketcher.Constraint("Symmetric", 30, 2, 59, 2, -1, 1))
sketch4.addConstraint(Sketcher.Constraint("Symmetric", 7, 2, 13, 2, -2))
sketch4.addConstraint(Sketcher.Constraint("Symmetric", 4, 2, 16, 2, -2))
sketch4.addConstraint(Sketcher.Constraint("Symmetric", 1, 2, 19, 2, -2))
sketch4.addConstraint(Sketcher.Constraint("Symmetric", 30, 2, 54, 2, -2))
sketch4.addConstraint(Sketcher.Constraint("PointOnObject", 10, 2, -2))
sketch4.addConstraint(Sketcher.Constraint("PointOnObject", 25, 2, -1))
sketch4.addConstraint(Sketcher.Constraint("PointOnObject", 27, 1, -1))
sketch4.addConstraint(Sketcher.Constraint("Perpendicular", 1, 16))
sketch4.addConstraint(Sketcher.Constraint("Perpendicular", 2, 17))
sketch4.addConstraint(Sketcher.Constraint("Perpendicular", 4, 19))
sketch4.addConstraint(Sketcher.Constraint("Perpendicular", 5, 20))
sketch4.addConstraint(Sketcher.Constraint("Perpendicular", 7, 22))
sketch4.addConstraint(Sketcher.Constraint("Perpendicular", 8, 23))
sketch4.addConstraint(Sketcher.Constraint("Perpendicular", 10, 25))
sketch4.addConstraint(Sketcher.Constraint("Perpendicular", 11, 26))
sketch4.addConstraint(Sketcher.Constraint("Perpendicular", 14, 28))
sketch4.addConstraint(Sketcher.Constraint("Perpendicular", 13, 30))
sketch4.addConstraint(Sketcher.Constraint("Perpendicular", 17, 31))
sketch4.addConstraint(Sketcher.Constraint("Perpendicular", 16, 33))
sketch4.addConstraint(Sketcher.Constraint("Perpendicular", 20, 34))
sketch4.addConstraint(Sketcher.Constraint("Perpendicular", 19, 36))
sketch4.addConstraint(Sketcher.Constraint("Perpendicular", 23, 37))
sketch4.addConstraint(Sketcher.Constraint("Perpendicular", 22, 39))
sketch4.addConstraint(Sketcher.Constraint("Perpendicular", 26, 40))
sketch4.addConstraint(Sketcher.Constraint("Perpendicular", 25, 42))
sketch4.addConstraint(Sketcher.Constraint("Perpendicular", 28, 43))
sketch4.addConstraint(Sketcher.Constraint("Perpendicular", 30, 45))
sketch4.addConstraint(Sketcher.Constraint("Perpendicular", 31, 46))
sketch4.addConstraint(Sketcher.Constraint("Perpendicular", 33, 48))
sketch4.addConstraint(Sketcher.Constraint("Perpendicular", 34, 49))
sketch4.addConstraint(Sketcher.Constraint("Perpendicular", 36, 51))
sketch4.addConstraint(Sketcher.Constraint("Perpendicular", 37, 52))
sketch4.addConstraint(Sketcher.Constraint("Perpendicular", 39, 54))
sketch4.addConstraint(Sketcher.Constraint("Perpendicular", 42, 56))
sketch4.addConstraint(Sketcher.Constraint("Perpendicular", 40, 57))
sketch4.addConstraint(Sketcher.Constraint("Perpendicular", 45, 59))
sketch4.addConstraint(Sketcher.Constraint("Perpendicular", 43, 60))
sketch4.addConstraint(Sketcher.Constraint("Horizontal", 9, 1, 11, 2))
sketch4.addConstraint(Sketcher.Constraint("Horizontal", 8, 2, 12, 1))
sketch4.addConstraint(Sketcher.Constraint("Horizontal", 6, 1, 14, 2))
sketch4.addConstraint(Sketcher.Constraint("Horizontal", 5, 2, 15, 1))
sketch4.addConstraint(Sketcher.Constraint("Horizontal", 3, 1, 17, 2))
sketch4.addConstraint(Sketcher.Constraint("Equal", 1, 2))
sketch4.addConstraint(Sketcher.Constraint("Equal", 2, 4))
sketch4.addConstraint(Sketcher.Constraint("Equal", 4, 5))
sketch4.addConstraint(Sketcher.Constraint("Equal", 5, 7))
sketch4.addConstraint(Sketcher.Constraint("Equal", 7, 8))
sketch4.addConstraint(Sketcher.Constraint("Equal", 8, 10))
sketch4.addConstraint(Sketcher.Constraint("Equal", 20, 22))
sketch4.addConstraint(Sketcher.Constraint("Equal", 22, 23))
sketch4.addConstraint(Sketcher.Constraint("Equal", 23, 25))
sketch4.addConstraint(Sketcher.Constraint("Radius", 0, Q("0.63 in")))
sketch4.addConstraint(Sketcher.Constraint("DistanceX", -1, 1, 9, 1, Q("0.0565 in")))
sketch4.addConstraint(Sketcher.Constraint("DistanceY", -1, 1, 0, 1, 10.528859))
sketch4.addConstraint(Sketcher.Constraint("DistanceY", -1, 1, 6, 1, 15.600951))
sketch4.addConstraint(Sketcher.Constraint("DistanceY", -1, 1, 8, 2, 14.71401))
sketch4.addConstraint(Sketcher.Constraint("Distance", 1, 3.087704))
sketch4.addConstraint(Sketcher.Constraint("DistanceX", 1, 2, -1, 1, 15.105523))
pad1 = body.newObject("PartDesign::Pad", "Pad")
pad1.Profile = sketch4
pad1.Length = Q("0.1 in")
pad1.Reversed = True

doc.recompute()
